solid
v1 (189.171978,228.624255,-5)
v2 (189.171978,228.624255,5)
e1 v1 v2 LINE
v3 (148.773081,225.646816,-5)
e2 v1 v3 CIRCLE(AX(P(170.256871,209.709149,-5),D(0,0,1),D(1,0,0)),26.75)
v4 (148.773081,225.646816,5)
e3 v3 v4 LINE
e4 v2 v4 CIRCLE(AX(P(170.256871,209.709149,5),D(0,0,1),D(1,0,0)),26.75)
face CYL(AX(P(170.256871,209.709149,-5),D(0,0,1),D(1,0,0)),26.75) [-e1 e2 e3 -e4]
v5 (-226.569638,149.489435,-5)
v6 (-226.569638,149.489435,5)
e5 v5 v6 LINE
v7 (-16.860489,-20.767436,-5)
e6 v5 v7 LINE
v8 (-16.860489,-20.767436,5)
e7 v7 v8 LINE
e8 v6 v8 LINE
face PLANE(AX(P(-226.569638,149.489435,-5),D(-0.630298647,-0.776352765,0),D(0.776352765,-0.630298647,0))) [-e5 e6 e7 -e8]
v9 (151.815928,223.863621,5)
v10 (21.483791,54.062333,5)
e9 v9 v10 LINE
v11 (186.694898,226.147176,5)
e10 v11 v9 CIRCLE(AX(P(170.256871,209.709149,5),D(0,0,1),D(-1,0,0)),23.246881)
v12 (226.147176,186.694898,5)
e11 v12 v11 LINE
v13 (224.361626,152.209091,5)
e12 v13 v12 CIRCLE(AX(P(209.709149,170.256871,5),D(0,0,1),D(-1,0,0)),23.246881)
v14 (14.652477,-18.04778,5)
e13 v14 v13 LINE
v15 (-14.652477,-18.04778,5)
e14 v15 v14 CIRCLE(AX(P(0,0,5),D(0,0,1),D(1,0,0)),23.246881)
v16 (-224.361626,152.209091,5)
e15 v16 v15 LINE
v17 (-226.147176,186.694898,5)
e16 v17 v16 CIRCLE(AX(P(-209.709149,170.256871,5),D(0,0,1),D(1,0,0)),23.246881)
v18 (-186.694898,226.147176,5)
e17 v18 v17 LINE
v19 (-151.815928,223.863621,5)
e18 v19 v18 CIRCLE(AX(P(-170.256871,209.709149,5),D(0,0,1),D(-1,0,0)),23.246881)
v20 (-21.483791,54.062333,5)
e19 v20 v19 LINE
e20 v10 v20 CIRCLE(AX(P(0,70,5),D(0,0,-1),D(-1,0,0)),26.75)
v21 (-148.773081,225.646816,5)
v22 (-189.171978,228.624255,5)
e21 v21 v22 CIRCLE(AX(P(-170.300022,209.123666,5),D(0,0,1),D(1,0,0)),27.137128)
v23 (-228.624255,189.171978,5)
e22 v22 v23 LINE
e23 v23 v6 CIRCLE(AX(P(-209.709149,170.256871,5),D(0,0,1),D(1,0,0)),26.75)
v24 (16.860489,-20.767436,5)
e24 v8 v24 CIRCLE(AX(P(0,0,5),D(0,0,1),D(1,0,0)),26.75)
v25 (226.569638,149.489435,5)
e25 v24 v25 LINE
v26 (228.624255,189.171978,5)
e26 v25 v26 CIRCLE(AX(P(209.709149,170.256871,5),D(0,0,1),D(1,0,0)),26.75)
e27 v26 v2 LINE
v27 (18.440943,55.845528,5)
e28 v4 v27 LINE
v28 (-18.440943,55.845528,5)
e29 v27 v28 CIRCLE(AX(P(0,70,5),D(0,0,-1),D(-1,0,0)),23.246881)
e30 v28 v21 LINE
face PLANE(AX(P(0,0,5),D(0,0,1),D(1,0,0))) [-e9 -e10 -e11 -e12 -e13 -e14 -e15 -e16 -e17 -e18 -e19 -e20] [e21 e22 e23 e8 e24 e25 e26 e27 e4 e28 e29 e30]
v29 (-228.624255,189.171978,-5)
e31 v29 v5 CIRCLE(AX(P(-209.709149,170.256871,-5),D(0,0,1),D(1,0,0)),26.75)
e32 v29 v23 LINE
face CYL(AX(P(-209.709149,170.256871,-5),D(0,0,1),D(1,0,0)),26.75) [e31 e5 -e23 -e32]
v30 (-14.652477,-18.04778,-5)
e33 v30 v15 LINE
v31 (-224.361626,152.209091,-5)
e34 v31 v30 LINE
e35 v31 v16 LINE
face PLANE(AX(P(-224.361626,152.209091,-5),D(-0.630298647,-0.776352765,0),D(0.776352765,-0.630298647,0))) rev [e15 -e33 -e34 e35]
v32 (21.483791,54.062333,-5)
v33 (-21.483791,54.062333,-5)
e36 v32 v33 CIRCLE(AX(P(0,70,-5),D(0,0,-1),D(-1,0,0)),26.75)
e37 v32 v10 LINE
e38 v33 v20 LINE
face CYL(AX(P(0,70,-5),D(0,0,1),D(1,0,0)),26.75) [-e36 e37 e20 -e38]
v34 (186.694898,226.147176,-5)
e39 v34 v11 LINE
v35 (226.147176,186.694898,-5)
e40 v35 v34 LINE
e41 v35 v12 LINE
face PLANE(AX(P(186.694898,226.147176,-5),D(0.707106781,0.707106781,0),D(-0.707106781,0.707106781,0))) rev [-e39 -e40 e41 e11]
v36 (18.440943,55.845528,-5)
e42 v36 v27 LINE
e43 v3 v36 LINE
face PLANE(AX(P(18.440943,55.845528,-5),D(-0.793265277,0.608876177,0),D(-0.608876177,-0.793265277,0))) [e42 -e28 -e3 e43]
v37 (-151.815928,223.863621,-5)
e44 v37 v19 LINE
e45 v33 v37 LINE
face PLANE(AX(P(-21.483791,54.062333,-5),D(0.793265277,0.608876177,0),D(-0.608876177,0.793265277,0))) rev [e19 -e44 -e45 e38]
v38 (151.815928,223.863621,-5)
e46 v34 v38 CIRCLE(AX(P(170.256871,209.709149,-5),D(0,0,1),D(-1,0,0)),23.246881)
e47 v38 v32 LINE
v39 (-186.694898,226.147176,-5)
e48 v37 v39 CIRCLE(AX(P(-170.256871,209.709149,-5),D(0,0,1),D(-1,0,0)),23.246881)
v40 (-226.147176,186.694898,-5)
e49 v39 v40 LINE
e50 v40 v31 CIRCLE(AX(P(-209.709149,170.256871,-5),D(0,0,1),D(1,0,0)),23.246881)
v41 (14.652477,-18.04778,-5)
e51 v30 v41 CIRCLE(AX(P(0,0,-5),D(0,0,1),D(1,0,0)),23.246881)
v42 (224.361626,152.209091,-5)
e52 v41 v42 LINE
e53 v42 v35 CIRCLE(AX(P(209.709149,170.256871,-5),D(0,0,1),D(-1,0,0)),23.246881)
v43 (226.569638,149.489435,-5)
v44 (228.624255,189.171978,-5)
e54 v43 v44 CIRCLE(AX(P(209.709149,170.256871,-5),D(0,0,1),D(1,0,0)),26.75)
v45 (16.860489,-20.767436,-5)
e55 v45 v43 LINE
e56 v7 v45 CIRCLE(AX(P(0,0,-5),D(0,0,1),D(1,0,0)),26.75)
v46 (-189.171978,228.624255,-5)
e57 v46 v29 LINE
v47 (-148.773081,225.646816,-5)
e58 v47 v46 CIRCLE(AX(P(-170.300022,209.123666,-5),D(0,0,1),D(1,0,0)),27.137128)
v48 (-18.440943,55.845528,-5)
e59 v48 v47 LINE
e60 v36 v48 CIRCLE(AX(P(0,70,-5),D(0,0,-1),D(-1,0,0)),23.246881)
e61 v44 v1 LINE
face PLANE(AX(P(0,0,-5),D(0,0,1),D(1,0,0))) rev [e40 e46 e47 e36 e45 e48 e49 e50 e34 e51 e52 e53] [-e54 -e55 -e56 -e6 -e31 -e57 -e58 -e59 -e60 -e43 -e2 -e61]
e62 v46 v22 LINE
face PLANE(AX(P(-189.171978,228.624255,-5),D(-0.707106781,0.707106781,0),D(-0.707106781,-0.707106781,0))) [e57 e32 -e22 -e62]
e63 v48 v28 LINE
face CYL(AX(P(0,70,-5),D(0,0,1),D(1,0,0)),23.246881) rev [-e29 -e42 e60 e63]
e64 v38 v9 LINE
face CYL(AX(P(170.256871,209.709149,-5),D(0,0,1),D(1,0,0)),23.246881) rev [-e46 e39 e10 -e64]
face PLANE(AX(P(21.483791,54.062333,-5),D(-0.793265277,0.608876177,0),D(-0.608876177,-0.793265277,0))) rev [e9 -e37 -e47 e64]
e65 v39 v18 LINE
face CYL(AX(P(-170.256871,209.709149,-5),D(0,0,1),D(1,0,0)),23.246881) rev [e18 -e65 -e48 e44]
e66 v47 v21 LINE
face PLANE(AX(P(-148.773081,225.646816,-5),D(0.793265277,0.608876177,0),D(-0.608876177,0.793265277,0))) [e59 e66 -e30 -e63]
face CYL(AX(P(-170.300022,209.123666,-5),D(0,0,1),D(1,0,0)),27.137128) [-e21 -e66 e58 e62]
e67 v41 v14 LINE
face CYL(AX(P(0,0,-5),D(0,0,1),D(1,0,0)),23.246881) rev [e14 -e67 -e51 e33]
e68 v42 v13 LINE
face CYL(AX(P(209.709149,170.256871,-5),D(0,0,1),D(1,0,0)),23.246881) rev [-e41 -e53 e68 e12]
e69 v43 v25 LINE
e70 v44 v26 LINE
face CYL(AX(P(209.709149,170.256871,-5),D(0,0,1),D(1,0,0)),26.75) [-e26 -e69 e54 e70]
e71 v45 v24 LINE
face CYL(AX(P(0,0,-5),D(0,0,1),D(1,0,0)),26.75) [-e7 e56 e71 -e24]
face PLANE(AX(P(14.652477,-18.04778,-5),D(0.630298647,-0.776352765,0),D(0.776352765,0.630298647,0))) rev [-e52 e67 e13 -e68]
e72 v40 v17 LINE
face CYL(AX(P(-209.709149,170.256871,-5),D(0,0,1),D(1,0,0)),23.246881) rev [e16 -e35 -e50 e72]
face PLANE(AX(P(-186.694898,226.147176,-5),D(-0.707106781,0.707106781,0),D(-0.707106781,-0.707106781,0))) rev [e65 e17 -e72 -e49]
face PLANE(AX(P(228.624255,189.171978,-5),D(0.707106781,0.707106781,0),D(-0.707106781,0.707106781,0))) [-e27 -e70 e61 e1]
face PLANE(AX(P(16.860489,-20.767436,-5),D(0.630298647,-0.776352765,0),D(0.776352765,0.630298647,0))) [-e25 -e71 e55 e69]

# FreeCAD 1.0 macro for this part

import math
import FreeCAD as App
import Part
import Sketcher

doc = App.newDocument("Part")
body = doc.addObject("PartDesign::Body", "Body")

sketch1 = body.newObject("Sketcher::SketchObject", "Sketch")
sketch1.AttachmentSupport = (doc.getObject("XY_Plane"), [""])
sketch1.MapMode = "FlatFace"
sketch1.addGeometry([
    Part.LineSegment(App.Vector(-18, 56, 0), App.Vector(-149, 226, 0)),
    Part.ArcOfCircle(Part.Circle(App.Vector(-170, 209, 0), App.Vector(0, 0, 1), 27), math.radians(38), math.radians(134)),
    Part.LineSegment(App.Vector(-189, 229, 0), App.Vector(-229, 189, 0)),
    Part.ArcOfCircle(Part.Circle(App.Vector(-210, 170, 0), App.Vector(0, 0, 1), 27), math.radians(135), math.radians(231)),
    Part.LineSegment(App.Vector(-227, 149, 0), App.Vector(-17, -21, 0)),
    Part.ArcOfCircle(Part.Circle(App.Vector(0, 0, 0), App.Vector(0, 0, 1), 27), math.radians(-129), math.radians(-51)),
    Part.LineSegment(App.Vector(17, -21, 0), App.Vector(227, 149, 0)),
    Part.ArcOfCircle(Part.Circle(App.Vector(210, 170, 0), App.Vector(0, 0, 1), 27), math.radians(-51), math.radians(45)),
    Part.LineSegment(App.Vector(229, 189, 0), App.Vector(189, 229, 0)),
    Part.ArcOfCircle(Part.Circle(App.Vector(170, 210, 0), App.Vector(0, 0, 1), 27), math.radians(45), math.radians(143)),
    Part.LineSegment(App.Vector(149, 226, 0), App.Vector(18, 56, 0)),
    Part.ArcOfCircle(Part.Circle(App.Vector(0, 70, 0), App.Vector(0, 0, 1), 23), math.radians(-142), math.radians(-38)),
    Part.ArcOfCircle(Part.Circle(App.Vector(0, 70, 0), App.Vector(0, 0, 1), 27), math.radians(-143), math.radians(-37)),
    Part.LineSegment(App.Vector(21, 54, 0), App.Vector(152, 224, 0)),
    Part.ArcOfCircle(Part.Circle(App.Vector(170, 210, 0), App.Vector(0, 0, 1), 23), math.radians(45), math.radians(142)),
    Part.LineSegment(App.Vector(187, 226, 0), App.Vector(226, 187, 0)),
    Part.ArcOfCircle(Part.Circle(App.Vector(210, 170, 0), App.Vector(0, 0, 1), 23), math.radians(-51), math.radians(45)),
    Part.LineSegment(App.Vector(224, 152, 0), App.Vector(15, -18, 0)),
    Part.ArcOfCircle(Part.Circle(App.Vector(0, 0, 0), App.Vector(0, 0, 1), 23), math.radians(-129), math.radians(-51)),
    Part.LineSegment(App.Vector(-15, -18, 0), App.Vector(-224, 152, 0)),
    Part.ArcOfCircle(Part.Circle(App.Vector(-210, 170, 0), App.Vector(0, 0, 1), 23), math.radians(135), math.radians(231)),
    Part.LineSegment(App.Vector(-226, 187, 0), App.Vector(-187, 226, 0)),
    Part.ArcOfCircle(Part.Circle(App.Vector(-170, 210, 0), App.Vector(0, 0, 1), 23), math.radians(38), math.radians(135)),
    Part.LineSegment(App.Vector(-152, 224, 0), App.Vector(-21, 54, 0)),
], False)
sketch1.addConstraint([
    Sketcher.Constraint("Tangent", 0, 2, 1, 1),
    Sketcher.Constraint("Coincident", 1, 2, 2, 1),
    Sketcher.Constraint("Tangent", 2, 2, 3, 1),
    Sketcher.Constraint("Tangent", 3, 2, 4, 1),
    Sketcher.Constraint("Tangent", 4, 2, 5, 1),
    Sketcher.Constraint("Tangent", 5, 2, 6, 1),
    Sketcher.Constraint("Tangent", 6, 2, 7, 1),
    Sketcher.Constraint("Tangent", 7, 2, 8, 1),
    Sketcher.Constraint("Tangent", 8, 2, 9, 1),
    Sketcher.Constraint("Coincident", 9, 2, 10, 1),
    Sketcher.Constraint("Tangent", 10, 2, 11, 2),
    Sketcher.Constraint("Tangent", 11, 1, 0, 1),
    Sketcher.Constraint("Coincident", 12, 2, 13, 1),
    Sketcher.Constraint("Tangent", 13, 2, 14, 2),
    Sketcher.Constraint("Tangent", 14, 1, 15, 1),
    Sketcher.Constraint("Tangent", 15, 2, 16, 2),
    Sketcher.Constraint("Tangent", 16, 1, 17, 1),
    Sketcher.Constraint("Tangent", 17, 2, 18, 2),
    Sketcher.Constraint("Tangent", 18, 1, 19, 1),
    Sketcher.Constraint("Tangent", 19, 2, 20, 2),
    Sketcher.Constraint("Tangent", 20, 1, 21, 1),
    Sketcher.Constraint("Tangent", 21, 2, 22, 2),
    Sketcher.Constraint("Tangent", 22, 1, 23, 1),
    Sketcher.Constraint("Coincident", 23, 2, 12, 1),
    Sketcher.Constraint("Coincident", 5, 3, -1, 1),
    Sketcher.Constraint("Coincident", 18, 3, -1, 1),
    Sketcher.Constraint("Coincident", 12, 3, 11, 3),
    Sketcher.Constraint("Coincident", 14, 3, 9, 3),
    Sketcher.Constraint("Coincident", 16, 3, 7, 3),
    Sketcher.Constraint("Coincident", 20, 3, 3, 3),
    Sketcher.Constraint("Equal", 3, 5),
    Sketcher.Constraint("Equal", 5, 7),
    Sketcher.Constraint("Equal", 7, 9),
    Sketcher.Constraint("Equal", 9, 12),
    Sketcher.Constraint("Equal", 11, 14),
    Sketcher.Constraint("Equal", 14, 16),
    Sketcher.Constraint("Equal", 16, 18),
    Sketcher.Constraint("Equal", 18, 20),
    Sketcher.Constraint("Equal", 20, 22),
    Sketcher.Constraint("Symmetric", 3, 3, 7, 3, -2),
    Sketcher.Constraint("Symmetric", 9, 3, 22, 3, -2),
    Sketcher.Constraint("Symmetric", 1, 2, 8, 2, -2),
    Sketcher.Constraint("Symmetric", 0, 2, 9, 2, -2),
    Sketcher.Constraint("Symmetric", 12, 2, 23, 2, -2),
    Sketcher.Constraint("Perpendicular", 2, 8),
    Sketcher.Constraint("Parallel", 10, 13),
    Sketcher.Constraint("Radius", 3, 26.75),
    Sketcher.Constraint("DistanceY", -1, 1, 11, 3, 70.0),
    Sketcher.Constraint("Radius", 11, 23.246881),
    Sketcher.Constraint("Radius", 1, 27.137128),
    Sketcher.Constraint("Distance", 0, 214.0536),
    Sketcher.Constraint("DistanceX", -1, 1, 14, 1, 186.694898),
    Sketcher.Constraint("DistanceY", -1, 1, 15, 2, 186.694898),
])
pad1 = body.newObject("PartDesign::Pad", "Pad")
pad1.Profile = sketch1
pad1.Type = "TwoLengths"
pad1.Length = 5
pad1.Length2 = 5

doc.recompute()
